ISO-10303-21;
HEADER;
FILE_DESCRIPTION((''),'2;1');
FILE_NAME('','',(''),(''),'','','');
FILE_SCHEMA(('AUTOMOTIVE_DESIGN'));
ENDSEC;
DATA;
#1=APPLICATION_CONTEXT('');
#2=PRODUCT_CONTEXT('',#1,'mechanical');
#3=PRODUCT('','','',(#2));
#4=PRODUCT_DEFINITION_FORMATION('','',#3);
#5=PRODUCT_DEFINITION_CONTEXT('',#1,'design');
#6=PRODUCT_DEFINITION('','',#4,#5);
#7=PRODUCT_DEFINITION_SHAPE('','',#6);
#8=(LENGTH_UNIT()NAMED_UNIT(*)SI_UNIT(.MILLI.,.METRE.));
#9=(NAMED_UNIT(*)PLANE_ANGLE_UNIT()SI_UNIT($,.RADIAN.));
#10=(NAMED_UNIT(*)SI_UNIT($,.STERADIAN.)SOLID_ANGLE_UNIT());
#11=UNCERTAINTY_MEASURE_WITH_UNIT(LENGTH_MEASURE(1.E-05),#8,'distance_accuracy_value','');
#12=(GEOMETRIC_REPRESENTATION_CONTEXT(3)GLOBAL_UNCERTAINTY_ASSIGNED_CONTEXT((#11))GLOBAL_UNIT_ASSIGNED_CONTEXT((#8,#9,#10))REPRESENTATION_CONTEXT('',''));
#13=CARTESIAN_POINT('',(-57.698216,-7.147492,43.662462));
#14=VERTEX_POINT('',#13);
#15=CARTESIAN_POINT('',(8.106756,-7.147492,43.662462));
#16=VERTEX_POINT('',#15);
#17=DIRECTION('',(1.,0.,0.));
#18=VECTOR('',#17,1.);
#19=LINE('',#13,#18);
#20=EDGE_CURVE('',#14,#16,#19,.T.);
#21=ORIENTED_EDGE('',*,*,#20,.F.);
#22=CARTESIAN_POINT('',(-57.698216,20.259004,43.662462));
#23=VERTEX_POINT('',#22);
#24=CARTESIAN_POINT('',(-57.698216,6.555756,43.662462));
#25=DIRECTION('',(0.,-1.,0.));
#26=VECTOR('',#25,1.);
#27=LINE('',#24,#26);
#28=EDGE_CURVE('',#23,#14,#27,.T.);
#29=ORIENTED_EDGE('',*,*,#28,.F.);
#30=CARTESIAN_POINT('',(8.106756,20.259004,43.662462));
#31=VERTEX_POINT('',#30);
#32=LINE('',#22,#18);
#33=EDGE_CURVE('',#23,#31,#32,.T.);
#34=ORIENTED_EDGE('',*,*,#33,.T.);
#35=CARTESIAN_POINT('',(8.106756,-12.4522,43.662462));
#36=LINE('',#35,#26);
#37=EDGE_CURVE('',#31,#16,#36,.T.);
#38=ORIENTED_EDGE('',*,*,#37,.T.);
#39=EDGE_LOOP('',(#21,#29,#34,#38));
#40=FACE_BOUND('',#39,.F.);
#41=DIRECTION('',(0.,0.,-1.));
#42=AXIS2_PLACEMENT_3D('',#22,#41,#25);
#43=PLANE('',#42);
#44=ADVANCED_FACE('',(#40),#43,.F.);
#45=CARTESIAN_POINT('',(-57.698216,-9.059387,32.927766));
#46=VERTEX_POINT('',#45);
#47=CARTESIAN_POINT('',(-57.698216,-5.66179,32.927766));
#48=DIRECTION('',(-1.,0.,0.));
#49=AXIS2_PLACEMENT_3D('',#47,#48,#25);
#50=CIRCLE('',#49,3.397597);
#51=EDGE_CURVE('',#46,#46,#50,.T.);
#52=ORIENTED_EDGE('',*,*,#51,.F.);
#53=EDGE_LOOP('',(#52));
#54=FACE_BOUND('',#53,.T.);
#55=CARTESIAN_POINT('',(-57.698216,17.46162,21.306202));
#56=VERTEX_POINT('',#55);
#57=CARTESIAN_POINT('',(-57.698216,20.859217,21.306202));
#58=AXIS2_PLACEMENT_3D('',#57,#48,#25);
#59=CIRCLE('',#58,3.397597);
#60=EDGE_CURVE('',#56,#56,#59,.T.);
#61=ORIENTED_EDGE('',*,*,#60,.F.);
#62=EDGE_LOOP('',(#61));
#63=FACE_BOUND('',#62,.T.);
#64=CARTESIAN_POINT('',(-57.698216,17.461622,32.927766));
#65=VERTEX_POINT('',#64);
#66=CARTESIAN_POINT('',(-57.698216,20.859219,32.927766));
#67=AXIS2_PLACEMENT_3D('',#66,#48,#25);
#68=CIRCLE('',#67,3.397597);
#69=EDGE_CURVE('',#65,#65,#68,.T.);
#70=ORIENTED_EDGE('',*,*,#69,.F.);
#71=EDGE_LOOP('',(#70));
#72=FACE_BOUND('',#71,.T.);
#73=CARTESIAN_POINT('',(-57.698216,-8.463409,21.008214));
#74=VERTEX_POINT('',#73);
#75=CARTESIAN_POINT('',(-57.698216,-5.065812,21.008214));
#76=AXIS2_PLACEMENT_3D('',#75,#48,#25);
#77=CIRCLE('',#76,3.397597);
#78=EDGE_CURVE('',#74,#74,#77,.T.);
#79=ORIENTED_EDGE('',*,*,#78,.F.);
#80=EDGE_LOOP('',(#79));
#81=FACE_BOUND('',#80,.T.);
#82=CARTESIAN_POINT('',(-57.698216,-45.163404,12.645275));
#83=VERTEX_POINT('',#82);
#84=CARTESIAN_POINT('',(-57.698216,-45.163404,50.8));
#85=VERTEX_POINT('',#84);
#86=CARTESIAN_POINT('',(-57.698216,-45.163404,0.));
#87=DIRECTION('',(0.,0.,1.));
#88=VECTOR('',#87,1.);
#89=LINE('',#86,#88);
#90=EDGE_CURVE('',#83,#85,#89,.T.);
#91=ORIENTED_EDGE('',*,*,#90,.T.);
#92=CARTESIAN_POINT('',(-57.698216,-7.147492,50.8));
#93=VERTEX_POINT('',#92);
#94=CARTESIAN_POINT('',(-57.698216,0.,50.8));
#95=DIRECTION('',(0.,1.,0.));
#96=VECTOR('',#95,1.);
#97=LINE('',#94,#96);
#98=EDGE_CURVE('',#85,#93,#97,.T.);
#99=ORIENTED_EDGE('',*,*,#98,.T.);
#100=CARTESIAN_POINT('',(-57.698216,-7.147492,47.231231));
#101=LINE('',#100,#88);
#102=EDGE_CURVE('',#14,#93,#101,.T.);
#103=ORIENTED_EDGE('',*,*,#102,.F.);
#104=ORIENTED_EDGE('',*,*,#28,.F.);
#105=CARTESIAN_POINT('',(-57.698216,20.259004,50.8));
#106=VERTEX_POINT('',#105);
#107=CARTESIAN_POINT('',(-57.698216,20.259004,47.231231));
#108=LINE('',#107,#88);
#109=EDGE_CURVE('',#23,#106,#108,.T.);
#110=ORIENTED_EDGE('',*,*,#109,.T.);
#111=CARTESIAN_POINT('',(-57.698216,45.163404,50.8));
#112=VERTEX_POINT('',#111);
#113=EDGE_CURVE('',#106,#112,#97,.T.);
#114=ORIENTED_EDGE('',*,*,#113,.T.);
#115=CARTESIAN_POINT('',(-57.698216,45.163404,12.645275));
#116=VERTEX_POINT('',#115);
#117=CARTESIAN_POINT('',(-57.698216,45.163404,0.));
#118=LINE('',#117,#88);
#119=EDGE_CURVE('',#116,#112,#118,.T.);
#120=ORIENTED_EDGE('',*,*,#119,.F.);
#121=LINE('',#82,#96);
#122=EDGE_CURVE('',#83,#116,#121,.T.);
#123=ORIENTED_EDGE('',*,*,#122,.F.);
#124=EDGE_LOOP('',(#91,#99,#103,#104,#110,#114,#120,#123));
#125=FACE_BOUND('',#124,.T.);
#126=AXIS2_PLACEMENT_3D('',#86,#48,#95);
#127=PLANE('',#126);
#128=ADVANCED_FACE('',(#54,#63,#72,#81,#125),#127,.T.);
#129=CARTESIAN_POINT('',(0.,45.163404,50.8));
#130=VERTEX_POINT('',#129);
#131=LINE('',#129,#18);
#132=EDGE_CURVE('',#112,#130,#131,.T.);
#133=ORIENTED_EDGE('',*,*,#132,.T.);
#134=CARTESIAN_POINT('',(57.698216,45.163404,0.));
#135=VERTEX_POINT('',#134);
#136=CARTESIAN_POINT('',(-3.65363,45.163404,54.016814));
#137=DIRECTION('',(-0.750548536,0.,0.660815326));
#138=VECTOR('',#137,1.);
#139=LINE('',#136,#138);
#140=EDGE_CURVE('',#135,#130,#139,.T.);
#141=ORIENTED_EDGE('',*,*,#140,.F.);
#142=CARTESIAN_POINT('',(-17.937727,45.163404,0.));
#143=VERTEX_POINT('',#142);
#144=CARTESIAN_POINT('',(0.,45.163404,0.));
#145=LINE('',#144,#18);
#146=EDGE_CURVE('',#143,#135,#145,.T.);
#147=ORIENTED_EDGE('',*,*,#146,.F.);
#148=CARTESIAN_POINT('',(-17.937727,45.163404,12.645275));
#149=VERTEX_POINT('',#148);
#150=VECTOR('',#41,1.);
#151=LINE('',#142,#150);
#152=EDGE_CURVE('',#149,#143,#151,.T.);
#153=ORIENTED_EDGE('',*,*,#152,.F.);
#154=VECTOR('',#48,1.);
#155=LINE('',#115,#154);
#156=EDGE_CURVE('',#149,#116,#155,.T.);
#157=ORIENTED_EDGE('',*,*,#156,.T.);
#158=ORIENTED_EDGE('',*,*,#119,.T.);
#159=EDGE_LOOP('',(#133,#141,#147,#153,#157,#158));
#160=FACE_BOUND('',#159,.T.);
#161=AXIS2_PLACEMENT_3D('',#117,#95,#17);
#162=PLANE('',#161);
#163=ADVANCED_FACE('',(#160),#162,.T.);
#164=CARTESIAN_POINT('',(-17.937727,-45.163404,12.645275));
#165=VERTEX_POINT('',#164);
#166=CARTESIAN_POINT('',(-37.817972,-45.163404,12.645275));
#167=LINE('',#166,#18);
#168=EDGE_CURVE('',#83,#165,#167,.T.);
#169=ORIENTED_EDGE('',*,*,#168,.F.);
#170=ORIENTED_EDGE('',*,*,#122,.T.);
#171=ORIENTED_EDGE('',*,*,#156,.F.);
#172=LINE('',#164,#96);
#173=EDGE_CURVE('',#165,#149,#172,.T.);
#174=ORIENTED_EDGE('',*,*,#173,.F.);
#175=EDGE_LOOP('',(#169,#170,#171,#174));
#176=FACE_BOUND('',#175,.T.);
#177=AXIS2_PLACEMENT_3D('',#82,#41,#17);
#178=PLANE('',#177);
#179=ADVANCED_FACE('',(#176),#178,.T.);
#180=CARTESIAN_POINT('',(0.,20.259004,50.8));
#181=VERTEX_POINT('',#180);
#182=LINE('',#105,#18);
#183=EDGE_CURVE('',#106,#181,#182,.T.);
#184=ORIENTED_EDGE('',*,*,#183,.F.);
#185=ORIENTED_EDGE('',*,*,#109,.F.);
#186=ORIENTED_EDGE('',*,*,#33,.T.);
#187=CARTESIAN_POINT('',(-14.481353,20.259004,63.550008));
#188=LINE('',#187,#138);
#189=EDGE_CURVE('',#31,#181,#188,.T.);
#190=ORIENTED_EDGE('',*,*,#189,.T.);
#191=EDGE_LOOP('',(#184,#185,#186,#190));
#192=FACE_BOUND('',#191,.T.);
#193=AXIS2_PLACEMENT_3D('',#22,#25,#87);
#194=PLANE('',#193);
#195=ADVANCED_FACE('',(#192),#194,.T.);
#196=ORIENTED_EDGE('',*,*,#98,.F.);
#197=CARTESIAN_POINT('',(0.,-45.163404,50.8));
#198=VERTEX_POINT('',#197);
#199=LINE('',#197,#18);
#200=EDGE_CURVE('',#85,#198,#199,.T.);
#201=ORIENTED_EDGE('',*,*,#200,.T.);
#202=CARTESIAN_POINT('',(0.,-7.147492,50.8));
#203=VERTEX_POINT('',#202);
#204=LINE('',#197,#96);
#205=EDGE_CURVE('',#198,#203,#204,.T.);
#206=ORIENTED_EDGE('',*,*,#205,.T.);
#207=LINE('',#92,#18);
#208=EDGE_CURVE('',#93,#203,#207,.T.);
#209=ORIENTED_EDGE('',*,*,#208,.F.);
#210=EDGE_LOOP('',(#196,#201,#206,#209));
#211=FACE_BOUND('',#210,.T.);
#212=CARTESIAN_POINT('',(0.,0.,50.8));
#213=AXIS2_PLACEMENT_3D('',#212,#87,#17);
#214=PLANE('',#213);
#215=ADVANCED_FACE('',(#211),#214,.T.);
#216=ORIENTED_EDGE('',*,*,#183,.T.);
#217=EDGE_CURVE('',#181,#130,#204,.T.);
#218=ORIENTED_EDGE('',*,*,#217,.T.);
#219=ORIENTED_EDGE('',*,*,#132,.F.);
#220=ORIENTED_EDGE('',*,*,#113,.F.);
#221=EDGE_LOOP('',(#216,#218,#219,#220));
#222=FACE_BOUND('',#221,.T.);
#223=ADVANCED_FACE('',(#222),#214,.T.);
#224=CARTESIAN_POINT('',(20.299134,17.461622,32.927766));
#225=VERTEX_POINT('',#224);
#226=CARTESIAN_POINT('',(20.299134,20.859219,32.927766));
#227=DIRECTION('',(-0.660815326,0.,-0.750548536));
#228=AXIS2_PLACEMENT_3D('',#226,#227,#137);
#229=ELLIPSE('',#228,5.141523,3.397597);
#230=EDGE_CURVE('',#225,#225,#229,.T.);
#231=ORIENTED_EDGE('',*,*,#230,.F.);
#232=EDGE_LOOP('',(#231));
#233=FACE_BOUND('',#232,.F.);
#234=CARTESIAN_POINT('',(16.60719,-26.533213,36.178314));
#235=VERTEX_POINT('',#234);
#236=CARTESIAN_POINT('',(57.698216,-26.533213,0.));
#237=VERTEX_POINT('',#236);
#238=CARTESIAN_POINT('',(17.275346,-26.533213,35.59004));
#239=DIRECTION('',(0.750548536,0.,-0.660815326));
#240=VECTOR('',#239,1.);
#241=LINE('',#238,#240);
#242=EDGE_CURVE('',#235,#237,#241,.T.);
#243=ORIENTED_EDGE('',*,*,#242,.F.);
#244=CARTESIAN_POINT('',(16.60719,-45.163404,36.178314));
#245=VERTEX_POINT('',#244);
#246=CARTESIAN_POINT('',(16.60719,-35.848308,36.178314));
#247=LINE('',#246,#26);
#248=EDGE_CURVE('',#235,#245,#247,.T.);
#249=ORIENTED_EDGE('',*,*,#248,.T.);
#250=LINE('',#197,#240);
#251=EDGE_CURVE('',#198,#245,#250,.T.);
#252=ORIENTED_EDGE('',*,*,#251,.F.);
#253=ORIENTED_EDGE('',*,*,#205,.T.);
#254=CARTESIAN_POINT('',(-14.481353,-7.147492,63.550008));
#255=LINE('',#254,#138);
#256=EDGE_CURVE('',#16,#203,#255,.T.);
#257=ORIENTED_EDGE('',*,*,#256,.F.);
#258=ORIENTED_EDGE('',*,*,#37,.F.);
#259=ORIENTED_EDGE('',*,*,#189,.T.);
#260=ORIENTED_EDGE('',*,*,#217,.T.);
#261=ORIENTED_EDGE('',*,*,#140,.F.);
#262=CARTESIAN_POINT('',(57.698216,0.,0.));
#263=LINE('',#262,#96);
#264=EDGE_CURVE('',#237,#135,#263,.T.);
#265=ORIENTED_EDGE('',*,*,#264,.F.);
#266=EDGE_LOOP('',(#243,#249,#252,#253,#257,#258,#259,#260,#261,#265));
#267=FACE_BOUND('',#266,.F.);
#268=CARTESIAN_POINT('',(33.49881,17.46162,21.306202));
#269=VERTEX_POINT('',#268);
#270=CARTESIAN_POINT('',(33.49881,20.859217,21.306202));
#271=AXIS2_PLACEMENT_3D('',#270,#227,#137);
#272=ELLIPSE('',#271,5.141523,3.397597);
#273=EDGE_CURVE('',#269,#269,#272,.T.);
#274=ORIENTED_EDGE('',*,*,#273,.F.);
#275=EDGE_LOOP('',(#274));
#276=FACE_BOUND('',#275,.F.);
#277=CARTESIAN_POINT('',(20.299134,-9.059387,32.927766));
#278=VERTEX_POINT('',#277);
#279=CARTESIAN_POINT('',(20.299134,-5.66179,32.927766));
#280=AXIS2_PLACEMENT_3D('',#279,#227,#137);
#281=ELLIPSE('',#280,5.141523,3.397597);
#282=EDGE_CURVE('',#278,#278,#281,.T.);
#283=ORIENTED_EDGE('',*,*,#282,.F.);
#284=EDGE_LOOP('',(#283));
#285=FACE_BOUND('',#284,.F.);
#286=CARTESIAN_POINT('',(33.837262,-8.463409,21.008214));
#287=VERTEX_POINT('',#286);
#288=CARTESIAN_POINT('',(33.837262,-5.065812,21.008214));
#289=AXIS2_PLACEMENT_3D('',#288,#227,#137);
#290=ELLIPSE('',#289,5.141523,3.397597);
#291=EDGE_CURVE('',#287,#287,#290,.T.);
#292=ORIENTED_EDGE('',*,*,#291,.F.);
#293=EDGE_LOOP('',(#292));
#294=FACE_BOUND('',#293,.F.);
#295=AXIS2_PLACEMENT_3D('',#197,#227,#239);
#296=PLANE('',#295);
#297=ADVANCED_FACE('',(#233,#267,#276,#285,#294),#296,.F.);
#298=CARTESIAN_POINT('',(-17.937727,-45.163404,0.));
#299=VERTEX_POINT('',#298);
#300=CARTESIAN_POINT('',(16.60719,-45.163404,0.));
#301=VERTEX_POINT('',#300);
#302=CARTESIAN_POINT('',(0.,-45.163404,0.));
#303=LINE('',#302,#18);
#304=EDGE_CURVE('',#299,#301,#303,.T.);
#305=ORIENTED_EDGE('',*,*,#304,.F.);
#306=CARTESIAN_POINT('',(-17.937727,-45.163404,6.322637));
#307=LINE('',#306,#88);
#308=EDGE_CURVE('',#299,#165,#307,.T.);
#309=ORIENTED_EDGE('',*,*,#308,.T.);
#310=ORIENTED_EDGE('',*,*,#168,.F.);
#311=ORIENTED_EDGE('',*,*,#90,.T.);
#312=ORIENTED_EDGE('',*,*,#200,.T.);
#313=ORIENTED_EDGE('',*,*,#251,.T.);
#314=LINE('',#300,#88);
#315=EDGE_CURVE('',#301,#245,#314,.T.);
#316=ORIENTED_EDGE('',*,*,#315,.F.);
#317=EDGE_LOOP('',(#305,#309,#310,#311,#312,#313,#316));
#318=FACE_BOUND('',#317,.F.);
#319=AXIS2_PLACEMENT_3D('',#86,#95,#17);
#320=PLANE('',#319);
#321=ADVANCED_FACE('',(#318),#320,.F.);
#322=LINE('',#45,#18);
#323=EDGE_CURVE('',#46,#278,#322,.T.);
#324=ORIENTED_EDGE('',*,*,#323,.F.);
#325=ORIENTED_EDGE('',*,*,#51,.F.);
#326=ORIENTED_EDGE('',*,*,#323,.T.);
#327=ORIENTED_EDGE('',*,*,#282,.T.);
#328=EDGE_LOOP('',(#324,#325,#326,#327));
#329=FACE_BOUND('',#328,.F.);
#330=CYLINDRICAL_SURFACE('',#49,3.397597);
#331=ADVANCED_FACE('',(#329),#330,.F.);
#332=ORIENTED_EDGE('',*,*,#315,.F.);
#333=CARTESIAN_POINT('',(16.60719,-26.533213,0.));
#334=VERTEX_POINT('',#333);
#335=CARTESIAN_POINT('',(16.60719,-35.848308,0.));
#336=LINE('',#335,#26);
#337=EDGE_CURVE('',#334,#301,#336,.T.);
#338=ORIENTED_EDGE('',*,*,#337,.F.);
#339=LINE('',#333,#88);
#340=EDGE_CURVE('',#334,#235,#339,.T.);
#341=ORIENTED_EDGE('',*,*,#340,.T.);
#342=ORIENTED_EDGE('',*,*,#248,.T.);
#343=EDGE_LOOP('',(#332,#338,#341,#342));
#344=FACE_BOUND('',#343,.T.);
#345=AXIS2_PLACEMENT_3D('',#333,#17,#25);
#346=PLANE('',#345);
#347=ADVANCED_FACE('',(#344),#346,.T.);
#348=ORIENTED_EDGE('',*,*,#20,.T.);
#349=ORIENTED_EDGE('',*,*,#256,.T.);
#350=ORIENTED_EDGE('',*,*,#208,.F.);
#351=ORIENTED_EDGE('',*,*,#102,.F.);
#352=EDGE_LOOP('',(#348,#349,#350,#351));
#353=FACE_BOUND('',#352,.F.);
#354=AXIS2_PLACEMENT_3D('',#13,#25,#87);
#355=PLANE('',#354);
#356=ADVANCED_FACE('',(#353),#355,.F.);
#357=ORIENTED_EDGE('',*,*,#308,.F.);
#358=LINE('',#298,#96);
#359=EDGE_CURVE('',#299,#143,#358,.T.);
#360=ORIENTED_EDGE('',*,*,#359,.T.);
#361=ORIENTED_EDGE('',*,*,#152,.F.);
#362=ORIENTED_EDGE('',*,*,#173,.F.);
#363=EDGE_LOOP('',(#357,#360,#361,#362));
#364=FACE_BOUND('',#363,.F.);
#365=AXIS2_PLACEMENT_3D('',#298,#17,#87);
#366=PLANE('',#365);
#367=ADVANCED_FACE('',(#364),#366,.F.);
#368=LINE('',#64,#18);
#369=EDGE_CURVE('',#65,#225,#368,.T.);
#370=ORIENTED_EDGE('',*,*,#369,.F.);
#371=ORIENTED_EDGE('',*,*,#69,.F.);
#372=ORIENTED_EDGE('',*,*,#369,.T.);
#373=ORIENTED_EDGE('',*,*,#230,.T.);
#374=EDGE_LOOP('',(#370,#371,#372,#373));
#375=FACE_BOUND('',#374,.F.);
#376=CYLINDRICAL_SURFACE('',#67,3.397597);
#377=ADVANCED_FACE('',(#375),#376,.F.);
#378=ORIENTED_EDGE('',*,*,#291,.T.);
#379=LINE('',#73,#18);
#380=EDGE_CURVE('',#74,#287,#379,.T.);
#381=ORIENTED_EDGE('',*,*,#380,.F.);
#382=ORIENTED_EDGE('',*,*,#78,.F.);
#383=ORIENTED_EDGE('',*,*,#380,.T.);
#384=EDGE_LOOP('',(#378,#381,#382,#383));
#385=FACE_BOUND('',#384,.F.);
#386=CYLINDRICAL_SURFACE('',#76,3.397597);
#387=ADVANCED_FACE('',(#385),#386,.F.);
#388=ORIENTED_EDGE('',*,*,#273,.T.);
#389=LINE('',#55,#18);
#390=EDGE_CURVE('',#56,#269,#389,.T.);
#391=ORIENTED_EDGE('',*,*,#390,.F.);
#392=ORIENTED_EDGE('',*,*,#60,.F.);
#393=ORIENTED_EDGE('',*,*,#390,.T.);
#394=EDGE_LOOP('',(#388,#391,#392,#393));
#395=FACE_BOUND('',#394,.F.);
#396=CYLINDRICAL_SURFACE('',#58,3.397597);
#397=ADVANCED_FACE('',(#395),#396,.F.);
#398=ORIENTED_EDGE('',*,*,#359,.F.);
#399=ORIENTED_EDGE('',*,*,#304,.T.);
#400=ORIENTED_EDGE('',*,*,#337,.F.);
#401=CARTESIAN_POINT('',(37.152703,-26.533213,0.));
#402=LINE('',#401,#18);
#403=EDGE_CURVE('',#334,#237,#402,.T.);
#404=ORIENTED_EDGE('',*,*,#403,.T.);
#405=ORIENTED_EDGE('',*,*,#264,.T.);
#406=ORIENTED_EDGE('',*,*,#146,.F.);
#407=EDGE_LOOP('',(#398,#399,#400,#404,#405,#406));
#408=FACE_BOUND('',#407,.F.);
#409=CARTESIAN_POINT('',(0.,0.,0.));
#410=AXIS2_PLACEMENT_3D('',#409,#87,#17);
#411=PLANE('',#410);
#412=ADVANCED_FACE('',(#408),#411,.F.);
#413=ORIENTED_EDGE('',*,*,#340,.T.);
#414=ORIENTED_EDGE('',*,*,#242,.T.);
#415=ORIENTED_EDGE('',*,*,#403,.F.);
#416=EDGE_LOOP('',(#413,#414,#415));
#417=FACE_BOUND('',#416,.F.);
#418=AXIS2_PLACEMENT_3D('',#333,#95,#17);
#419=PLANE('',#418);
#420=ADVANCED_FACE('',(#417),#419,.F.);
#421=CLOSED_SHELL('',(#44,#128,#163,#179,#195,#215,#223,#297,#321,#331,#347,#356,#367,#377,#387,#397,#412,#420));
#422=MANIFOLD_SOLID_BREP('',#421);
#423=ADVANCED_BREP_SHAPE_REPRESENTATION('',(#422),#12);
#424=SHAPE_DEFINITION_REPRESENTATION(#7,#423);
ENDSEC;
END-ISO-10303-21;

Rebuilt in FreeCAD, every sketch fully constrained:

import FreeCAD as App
import Part
import Sketcher

V = App.Vector
Q = App.Units.Quantity


def add_polygon(sketch, points):
    """Adds a closed chain of lines whose ends are joined by coincident constraints."""
    first, n = sketch.GeometryCount, len(points)
    for a, b in zip(points, points[1:] + points[:1]):
        sketch.addGeometry(Part.LineSegment(App.Vector(*a, 0), App.Vector(*b, 0)), False)
    for i in range(n):
        sketch.addConstraint(Sketcher.Constraint("Coincident", first + i, 2, first + (i + 1) % n, 1))

doc = App.newDocument("Part")
body = doc.addObject("PartDesign::Body", "Body")

# Sketch on XY plane
sketch1 = body.newObject("Sketcher::SketchObject", "Sketch")
sketch1.AttachmentSupport = (doc.getObject("XY_Plane"), [""])
sketch1.MapMode = "FlatFace"
add_polygon(sketch1, [(-58, 45), (-58, -45), (58, -45), (58, 45)])  # lines 0-3
sketch1.addConstraint([
    Sketcher.Constraint("Vertical", 0),
    Sketcher.Constraint("Horizontal", 1),
    Sketcher.Constraint("Vertical", 2),
    Sketcher.Constraint("Horizontal", 3),
    Sketcher.Constraint("Symmetric", 0, 2, 2, 2, -1, 1),
    Sketcher.Constraint("DistanceY", 0, 2, 0, 1, 90.326808),
    Sketcher.Constraint("DistanceX", 1, 1, 1, 2, 115.396433),
])
pad1 = body.newObject("PartDesign::Pad", "Pad")
pad1.Profile = sketch1
pad1.Length = Q("2 in")

# Sketch on XZ plane
sketch2 = body.newObject("Sketcher::SketchObject", "Sketch001")
sketch2.AttachmentSupport = (doc.getObject("XZ_Plane"), [""])
sketch2.MapMode = "FlatFace"
sketch2.AttachmentOffset = App.Placement(V(0, 0, 45.163404), App.Rotation())
add_polygon(sketch2, [(58, 51), (0, 51), (58, 0)])  # lines 0-2
add_polygon(sketch2, [(-58, 13), (-58, 0), (-18, 0), (-18, 13)])  # lines 3-6
sketch2.addConstraint([
    Sketcher.Constraint("Horizontal", 0),
    Sketcher.Constraint("Vertical", 2),
    Sketcher.Constraint("Vertical", 3),
    Sketcher.Constraint("Horizontal", 4),
    Sketcher.Constraint("Vertical", 5),
    Sketcher.Constraint("Horizontal", 6),
    Sketcher.Constraint("Symmetric", 1, 2, 3, 2, -1, 1),
    Sketcher.Constraint("PointOnObject", 0, 2, -2),
    Sketcher.Constraint("PointOnObject", 1, 2, -1),
    Sketcher.Constraint("DistanceY", 2, 1, 2, 2, Q("2 in")),
    Sketcher.Constraint("DistanceX", 4, 1, 4, 2, 39.760489),
    Sketcher.Constraint("Distance", 1, 76.87473),
    Sketcher.Constraint("DistanceY", 3, 2, 3, 1, 12.645275),
])
pocket1 = body.newObject("PartDesign::Pocket", "Pocket")
pocket1.Profile = sketch2
pocket1.Type = "ThroughAll"

# Sketch on XY plane
sketch3 = body.newObject("Sketcher::SketchObject", "Sketch002")
sketch3.AttachmentSupport = (doc.getObject("XY_Plane"), [""])
sketch3.MapMode = "FlatFace"
add_polygon(sketch3, [(17, -45), (17, -27), (58, -27), (58, -45)])  # lines 0-3
sketch3.addConstraint([
    Sketcher.Constraint("Vertical", 0),
    Sketcher.Constraint("Horizontal", 1),
    Sketcher.Constraint("Vertical", 2),
    Sketcher.Constraint("Horizontal", 3),
    Sketcher.Constraint("DistanceY", 0, 1, 0, 2, 18.630192),
    Sketcher.Constraint("DistanceX", 1, 1, 1, 2, 41.091027),
    Sketcher.Constraint("DistanceX", -1, 1, 0, 2, 16.60719),
    Sketcher.Constraint("DistanceY", 0, 2, -1, 1, 26.533213),
])
pocket2 = body.newObject("PartDesign::Pocket", "Pocket001")
pocket2.Profile = sketch3
pocket2.Type = "ThroughAll"
pocket2.Reversed = True

# Sketch on YZ plane
sketch4 = body.newObject("Sketcher::SketchObject", "Sketch003")
sketch4.AttachmentSupport = (doc.getObject("YZ_Plane"), [""])
sketch4.MapMode = "FlatFace"
sketch4.AttachmentOffset = App.Placement(V(0, 0, -57.698216), App.Rotation())
sketch4.addGeometry(Part.Circle(V(20.9, 21.3, 0), V(0, 0, 1), 3.4), False)  # 0
sketch4.addGeometry(Part.Circle(V(20.9, 32.9, 0), V(0, 0, 1), 3.4), False)  # 1
sketch4.addGeometry(Part.Circle(V(-5.7, 32.9, 0), V(0, 0, 1), 3.4), False)  # 2
sketch4.addGeometry(Part.Circle(V(-5.1, 21, 0), V(0, 0, 1), 3.4), False)  # 3
add_polygon(sketch4, [(20.3, 50.8), (20.3, 43.7), (-7.1, 43.7), (-7.1, 50.8)])  # lines 4-7
sketch4.addConstraint([
    Sketcher.Constraint("Vertical", 4),
    Sketcher.Constraint("Horizontal", 5),
    Sketcher.Constraint("Vertical", 6),
    Sketcher.Constraint("Horizontal", 7),
    Sketcher.Constraint("Equal", 0, 1),
    Sketcher.Constraint("Equal", 1, 2),
    Sketcher.Constraint("Equal", 2, 3),
    Sketcher.Constraint("Horizontal", 1, 3, 2, 3),
    Sketcher.Constraint("Vertical", 0, 3, 1, 3),
    Sketcher.Constraint("DistanceY", -1, 1, 6, 2, Q("2 in")),
    Sketcher.Constraint("Diameter", 0, 6.795194),
    Sketcher.Constraint("DistanceY", 4, 2, 4, 1, 7.137538),
    Sketcher.Constraint("DistanceY", -1, 1, 0, 3, 21.306202),
    Sketcher.Constraint("DistanceX", 5, 2, 5, 1, 27.406496),
    Sketcher.Constraint("DistanceX", -1, 1, 1, 3, 20.859219),
    Sketcher.Constraint("DistanceX", 2, 3, -1, 1, 5.66179),
    Sketcher.Constraint("DistanceX", 3, 3, -1, 1, 5.065812),
    Sketcher.Constraint("DistanceX", 5, 2, 3, 3, 2.081681),
    Sketcher.Constraint("DistanceY", -1, 1, 1, 3, 32.927766),
    Sketcher.Constraint("DistanceY", -1, 1, 3, 3, 21.008214),
])
pocket3 = body.newObject("PartDesign::Pocket", "Pocket002")
pocket3.Profile = sketch4
pocket3.Type = "ThroughAll"
pocket3.Reversed = True

doc.recompute()
